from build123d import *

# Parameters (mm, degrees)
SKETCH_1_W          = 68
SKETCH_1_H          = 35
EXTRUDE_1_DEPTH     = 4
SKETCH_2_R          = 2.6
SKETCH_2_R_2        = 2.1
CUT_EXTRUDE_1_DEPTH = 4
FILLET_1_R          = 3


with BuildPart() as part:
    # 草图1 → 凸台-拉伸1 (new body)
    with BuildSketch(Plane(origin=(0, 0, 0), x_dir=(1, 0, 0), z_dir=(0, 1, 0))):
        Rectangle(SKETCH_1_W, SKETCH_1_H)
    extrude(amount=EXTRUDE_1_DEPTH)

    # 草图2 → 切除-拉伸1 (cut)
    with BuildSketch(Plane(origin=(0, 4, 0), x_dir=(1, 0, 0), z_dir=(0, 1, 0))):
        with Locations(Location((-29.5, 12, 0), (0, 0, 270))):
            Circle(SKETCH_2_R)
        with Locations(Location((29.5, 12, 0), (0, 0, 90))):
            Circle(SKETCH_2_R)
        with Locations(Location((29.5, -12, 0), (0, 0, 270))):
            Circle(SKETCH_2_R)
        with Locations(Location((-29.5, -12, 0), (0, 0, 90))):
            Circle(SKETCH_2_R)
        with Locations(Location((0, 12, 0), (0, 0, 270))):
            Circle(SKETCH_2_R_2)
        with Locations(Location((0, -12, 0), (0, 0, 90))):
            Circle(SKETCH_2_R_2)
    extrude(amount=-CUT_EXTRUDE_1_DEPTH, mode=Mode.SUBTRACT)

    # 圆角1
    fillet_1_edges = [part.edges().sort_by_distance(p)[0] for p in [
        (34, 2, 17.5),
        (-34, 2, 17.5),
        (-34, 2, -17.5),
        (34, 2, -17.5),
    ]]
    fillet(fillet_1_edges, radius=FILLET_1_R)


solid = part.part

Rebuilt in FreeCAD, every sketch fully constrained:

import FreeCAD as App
import Part
import Sketcher
Q = App.Units.Quantity


def edges_at(feature, points):
    """Names of the edges that pass closest to the given points."""
    edges = feature.Shape.Edges
    near = lambda p: min(range(len(edges)), key=lambda i: edges[i].distToShape(Part.Vertex(*p))[0])
    return sorted({f"Edge{near(p) + 1}" for p in points})


def add_polygon(sketch, points):
    """Adds a closed chain of lines whose ends are joined by coincident constraints."""
    first, n = sketch.GeometryCount, len(points)
    for a, b in zip(points, points[1:] + points[:1]):
        sketch.addGeometry(Part.LineSegment(App.Vector(*a, 0), App.Vector(*b, 0)), False)
    for i in range(n):
        sketch.addConstraint(Sketcher.Constraint("Coincident", first + i, 2, first + (i + 1) % n, 1))

doc = App.newDocument("Part")
body = doc.addObject("PartDesign::Body", "Body")

# Sketch on XZ plane
sketch1 = body.newObject("Sketcher::SketchObject", "Sketch")
sketch1.AttachmentSupport = (doc.getObject("XZ_Plane"), [""])
sketch1.MapMode = "FlatFace"
add_polygon(sketch1, [(-34, -17.5), (-34, 17.5), (34, 17.5), (34, -17.5)])  # lines 0-3
sketch1.addConstraint([
    Sketcher.Constraint("Vertical", 0),
    Sketcher.Constraint("Horizontal", 1),
    Sketcher.Constraint("Vertical", 2),
    Sketcher.Constraint("Horizontal", 3),
    Sketcher.Constraint("Symmetric", 0, 2, 2, 2, -1, 1),
    Sketcher.Constraint("DistanceX", 1, 1, 1, 2, Q("68 mm")),
    Sketcher.Constraint("DistanceY", 0, 1, 0, 2, Q("35 mm")),
])
pad1 = body.newObject("PartDesign::Pad", "Pad")
pad1.Profile = sketch1
pad1.Length = 4
pad1.Reversed = True

# Sketch on XZ plane
sketch2 = body.newObject("Sketcher::SketchObject", "Sketch001")
sketch2.AttachmentSupport = (doc.getObject("XZ_Plane"), [""])
sketch2.MapMode = "FlatFace"
sketch2.AttachmentOffset = App.Placement(App.Vector(0, 0, -4), App.Rotation())
sketch2.addGeometry([
    Part.Circle(App.Vector(-29.5, -12, 0), App.Vector(0, 0, 1), 2.6),  # 0
    Part.Circle(App.Vector(29.5, -12, 0), App.Vector(0, 0, 1), 2.6),  # 1
    Part.Circle(App.Vector(29.5, 12, 0), App.Vector(0, 0, 1), 2.6),  # 2
    Part.Circle(App.Vector(-29.5, 12, 0), App.Vector(0, 0, 1), 2.6),  # 3
    Part.Circle(App.Vector(0, -12, 0), App.Vector(0, 0, 1), 2.1),  # 4
    Part.Circle(App.Vector(0, 12, 0), App.Vector(0, 0, 1), 2.1),  # 5
], False)
sketch2.addConstraint([
    Sketcher.Constraint("Equal", 0, 1),
    Sketcher.Constraint("Equal", 1, 2),
    Sketcher.Constraint("Equal", 2, 3),
    Sketcher.Constraint("Equal", 4, 5),
    Sketcher.Constraint("Symmetric", 0, 3, 2, 3, -1, 1),
    Sketcher.Constraint("Symmetric", 1, 3, 3, 3, -1, 1),
    Sketcher.Constraint("Symmetric", 4, 3, 5, 3, -1, 1),
    Sketcher.Constraint("Symmetric", 0, 3, 1, 3, -2),
    Sketcher.Constraint("PointOnObject", 4, 3, -2),
    Sketcher.Constraint("Horizontal", 1, 3, 4, 3),
    Sketcher.Constraint("Diameter", 0, Q("5.2 mm")),
    Sketcher.Constraint("Diameter", 4, Q("4.2 mm")),
    Sketcher.Constraint("DistanceY", 0, 3, -1, 1, Q("12 mm")),
    Sketcher.Constraint("DistanceX", 0, 3, 1, 3, Q("59 mm")),
])
pocket1 = body.newObject("PartDesign::Pocket", "Pocket")
pocket1.Profile = sketch2
pocket1.Length = 4
pocket1.Reversed = True
doc.recompute()

fillet = body.newObject("PartDesign::Fillet", "Fillet")
fillet.Base = (pocket1, edges_at(pocket1, [
    (34, 2, 17.5),
    (-34, 2, 17.5),
    (-34, 2, -17.5),
    (34, 2, -17.5),
]))
fillet.Radius = 3

doc.recompute()
